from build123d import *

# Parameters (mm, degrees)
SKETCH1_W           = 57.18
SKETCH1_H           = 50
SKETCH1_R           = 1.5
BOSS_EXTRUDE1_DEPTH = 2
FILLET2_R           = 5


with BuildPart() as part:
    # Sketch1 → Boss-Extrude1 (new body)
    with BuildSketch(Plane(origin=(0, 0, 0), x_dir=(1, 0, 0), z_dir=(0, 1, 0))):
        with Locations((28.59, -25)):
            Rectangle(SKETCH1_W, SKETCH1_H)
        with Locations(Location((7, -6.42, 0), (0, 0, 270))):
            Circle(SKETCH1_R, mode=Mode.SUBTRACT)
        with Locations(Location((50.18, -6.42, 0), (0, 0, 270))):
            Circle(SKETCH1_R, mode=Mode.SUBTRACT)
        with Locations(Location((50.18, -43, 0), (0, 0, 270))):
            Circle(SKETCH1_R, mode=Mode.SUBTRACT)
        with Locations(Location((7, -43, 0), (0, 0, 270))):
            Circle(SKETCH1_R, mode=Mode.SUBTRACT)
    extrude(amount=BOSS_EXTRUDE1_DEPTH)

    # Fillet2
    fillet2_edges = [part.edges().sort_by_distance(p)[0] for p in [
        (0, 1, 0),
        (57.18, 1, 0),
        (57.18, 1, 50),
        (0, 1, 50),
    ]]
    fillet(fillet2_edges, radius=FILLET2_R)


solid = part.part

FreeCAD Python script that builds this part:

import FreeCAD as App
import Part
import Sketcher

V = App.Vector
Q = App.Units.Quantity


def edges_at(feature, points):
    """Names of the edges that pass closest to the given points."""
    edges = feature.Shape.Edges
    near = lambda p: min(range(len(edges)), key=lambda i: edges[i].distToShape(Part.Vertex(*p))[0])
    return sorted({f"Edge{near(p) + 1}" for p in points})

doc = App.newDocument("Part")
body = doc.addObject("PartDesign::Body", "Body")

# Sketch on XZ plane
sketch1 = body.newObject("Sketcher::SketchObject", "Sketch")
sketch1.AttachmentSupport = (doc.getObject("XZ_Plane"), [""])
sketch1.MapMode = "FlatFace"
sketch1.addGeometry([
    Part.LineSegment(V(0, 0, 0), V(0, 50, 0)),  # 0
    Part.LineSegment(V(0, 50, 0), V(57.2, 50, 0)),  # 1
    Part.LineSegment(V(57.2, 50, 0), V(57.2, 0, 0)),  # 2
    Part.LineSegment(V(57.2, 0, 0), V(0, 0, 0)),  # 3
    Part.Circle(V(7, 43, 0), V(0, 0, 1), 1.5),  # 4
    Part.Circle(V(50.2, 43, 0), V(0, 0, 1), 1.5),  # 5
    Part.Circle(V(7, 6.4, 0), V(0, 0, 1), 1.5),  # 6
    Part.Circle(V(50.2, 6.4, 0), V(0, 0, 1), 1.5),  # 7
], False)
sketch1.addConstraint([
    Sketcher.Constraint("Coincident", 0, 2, 1, 1),
    Sketcher.Constraint("Coincident", 1, 2, 2, 1),
    Sketcher.Constraint("Coincident", 2, 2, 3, 1),
    Sketcher.Constraint("Coincident", 3, 2, 0, 1),
    Sketcher.Constraint("Vertical", 0),
    Sketcher.Constraint("Horizontal", 1),
    Sketcher.Constraint("Vertical", 2),
    Sketcher.Constraint("Horizontal", 3),
    Sketcher.Constraint("Coincident", 3, 2, -1, 1),
    Sketcher.Constraint("Equal", 4, 5),
    Sketcher.Constraint("Equal", 5, 6),
    Sketcher.Constraint("Equal", 6, 7),
    Sketcher.Constraint("Horizontal", 4, 3, 5, 3),
    Sketcher.Constraint("Horizontal", 6, 3, 7, 3),
    Sketcher.Constraint("Vertical", 4, 3, 6, 3),
    Sketcher.Constraint("Vertical", 5, 3, 7, 3),
    Sketcher.Constraint("Diameter", 4, Q("3 mm")),
    Sketcher.Constraint("DistanceY", 0, 1, 0, 2, Q("50 mm")),
    Sketcher.Constraint("DistanceX", -1, 1, 4, 3, Q("7 mm")),
    Sketcher.Constraint("DistanceY", -1, 1, 4, 3, Q("43 mm")),
    Sketcher.Constraint("DistanceX", 5, 3, 1, 2, Q("7 mm")),
    Sketcher.Constraint("DistanceX", 1, 1, 1, 2, Q("57.18 mm")),
    Sketcher.Constraint("DistanceY", -1, 1, 6, 3, Q("6.42 mm")),
])
pad1 = body.newObject("PartDesign::Pad", "Pad")
pad1.Profile = sketch1
pad1.Length = 2
pad1.Reversed = True
doc.recompute()

fillet = body.newObject("PartDesign::Fillet", "Fillet")
fillet.Base = (pad1, edges_at(pad1, [
    (0, 1, 0),
    (57.18, 1, 0),
    (57.18, 1, 50),
    (0, 1, 50),
]))
fillet.Radius = 5

doc.recompute()
